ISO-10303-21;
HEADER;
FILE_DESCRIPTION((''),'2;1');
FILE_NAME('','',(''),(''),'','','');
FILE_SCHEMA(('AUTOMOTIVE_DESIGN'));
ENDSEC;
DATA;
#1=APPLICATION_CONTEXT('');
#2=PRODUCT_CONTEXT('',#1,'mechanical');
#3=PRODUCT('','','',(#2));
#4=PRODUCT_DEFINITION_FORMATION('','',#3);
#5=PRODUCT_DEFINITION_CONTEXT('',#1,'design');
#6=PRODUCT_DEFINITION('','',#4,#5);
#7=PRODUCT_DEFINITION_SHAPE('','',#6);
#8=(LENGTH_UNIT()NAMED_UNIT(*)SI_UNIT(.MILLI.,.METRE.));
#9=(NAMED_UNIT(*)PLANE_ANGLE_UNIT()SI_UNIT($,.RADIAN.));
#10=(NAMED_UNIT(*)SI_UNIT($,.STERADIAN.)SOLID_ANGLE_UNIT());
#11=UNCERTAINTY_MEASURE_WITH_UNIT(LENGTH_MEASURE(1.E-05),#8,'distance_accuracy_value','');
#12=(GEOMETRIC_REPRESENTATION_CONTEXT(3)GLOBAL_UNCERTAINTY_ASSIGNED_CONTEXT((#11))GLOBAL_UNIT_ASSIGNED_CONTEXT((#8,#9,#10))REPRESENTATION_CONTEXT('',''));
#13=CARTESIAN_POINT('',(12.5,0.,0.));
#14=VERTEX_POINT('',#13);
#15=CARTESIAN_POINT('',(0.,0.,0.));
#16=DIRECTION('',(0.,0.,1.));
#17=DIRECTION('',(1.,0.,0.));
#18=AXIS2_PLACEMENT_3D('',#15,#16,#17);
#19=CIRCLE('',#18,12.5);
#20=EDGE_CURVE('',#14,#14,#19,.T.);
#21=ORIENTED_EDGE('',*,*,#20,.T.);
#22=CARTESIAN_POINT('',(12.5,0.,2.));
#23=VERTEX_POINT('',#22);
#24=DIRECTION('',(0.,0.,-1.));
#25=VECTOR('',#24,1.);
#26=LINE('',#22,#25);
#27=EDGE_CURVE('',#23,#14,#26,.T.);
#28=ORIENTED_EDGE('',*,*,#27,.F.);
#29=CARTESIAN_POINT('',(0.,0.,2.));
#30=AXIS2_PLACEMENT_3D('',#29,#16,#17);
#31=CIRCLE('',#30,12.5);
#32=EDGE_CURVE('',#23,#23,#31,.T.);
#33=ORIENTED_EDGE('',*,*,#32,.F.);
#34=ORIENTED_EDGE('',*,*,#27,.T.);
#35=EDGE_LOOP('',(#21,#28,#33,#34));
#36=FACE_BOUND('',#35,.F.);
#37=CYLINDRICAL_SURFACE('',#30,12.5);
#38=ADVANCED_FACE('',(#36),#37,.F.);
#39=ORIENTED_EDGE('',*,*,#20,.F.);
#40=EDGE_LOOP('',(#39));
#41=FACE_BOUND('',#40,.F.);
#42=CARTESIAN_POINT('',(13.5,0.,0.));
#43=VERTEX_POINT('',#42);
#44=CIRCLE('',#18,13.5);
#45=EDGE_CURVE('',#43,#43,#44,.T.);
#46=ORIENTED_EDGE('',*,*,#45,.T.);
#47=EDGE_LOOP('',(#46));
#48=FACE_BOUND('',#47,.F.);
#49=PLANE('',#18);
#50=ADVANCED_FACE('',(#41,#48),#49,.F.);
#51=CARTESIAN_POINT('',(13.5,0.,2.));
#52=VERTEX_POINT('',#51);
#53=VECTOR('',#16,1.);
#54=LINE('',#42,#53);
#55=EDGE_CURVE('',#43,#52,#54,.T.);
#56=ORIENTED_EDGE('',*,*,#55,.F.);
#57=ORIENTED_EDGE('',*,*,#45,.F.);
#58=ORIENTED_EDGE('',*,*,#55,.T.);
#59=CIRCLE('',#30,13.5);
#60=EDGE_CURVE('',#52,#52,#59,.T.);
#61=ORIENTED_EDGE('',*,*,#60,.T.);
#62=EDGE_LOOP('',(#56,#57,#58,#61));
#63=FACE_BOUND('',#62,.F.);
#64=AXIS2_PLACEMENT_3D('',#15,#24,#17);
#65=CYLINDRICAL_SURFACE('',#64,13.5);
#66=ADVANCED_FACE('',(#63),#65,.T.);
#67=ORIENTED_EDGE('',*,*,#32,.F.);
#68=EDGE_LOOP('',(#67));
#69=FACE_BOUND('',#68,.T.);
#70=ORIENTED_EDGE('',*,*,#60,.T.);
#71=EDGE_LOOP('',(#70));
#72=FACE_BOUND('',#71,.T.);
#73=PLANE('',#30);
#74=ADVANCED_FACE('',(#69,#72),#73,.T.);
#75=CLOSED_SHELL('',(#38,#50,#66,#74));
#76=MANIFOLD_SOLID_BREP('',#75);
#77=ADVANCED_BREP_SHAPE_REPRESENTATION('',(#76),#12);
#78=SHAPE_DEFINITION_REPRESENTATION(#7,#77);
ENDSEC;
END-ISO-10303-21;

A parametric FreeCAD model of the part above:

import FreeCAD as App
import Part
import Sketcher

V = App.Vector
Q = App.Units.Quantity

doc = App.newDocument("Part")
body = doc.addObject("PartDesign::Body", "Body")

# Sketch on XY plane
sketch1 = body.newObject("Sketcher::SketchObject", "Sketch")
sketch1.AttachmentSupport = (doc.getObject("XY_Plane"), [""])
sketch1.MapMode = "FlatFace"
sketch1.addGeometry(Part.Circle(V(0, 0, 0), V(0, 0, 1), 14), False)
sketch1.addConstraint([
    Sketcher.Constraint("Coincident", 0, 3, -1, 1),
    Sketcher.Constraint("Diameter", 0, Q("27 mm")),
])
pad1 = body.newObject("PartDesign::Pad", "Pad")
pad1.Profile = sketch1
pad1.Length = 2

# Sketch on XY plane
sketch2 = body.newObject("Sketcher::SketchObject", "Sketch001")
sketch2.AttachmentSupport = (doc.getObject("XY_Plane"), [""])
sketch2.MapMode = "FlatFace"
sketch2.AttachmentOffset = App.Placement(V(0, 0, 2), App.Rotation())
sketch2.addGeometry(Part.Circle(V(0, 0, 0), V(0, 0, 1), 12), False)
sketch2.addConstraint([
    Sketcher.Constraint("Coincident", 0, 3, -1, 1),
    Sketcher.Constraint("Diameter", 0, Q("25 mm")),
])
pocket1 = body.newObject("PartDesign::Pocket", "Pocket")
pocket1.Profile = sketch2
pocket1.Length = 25

doc.recompute()
